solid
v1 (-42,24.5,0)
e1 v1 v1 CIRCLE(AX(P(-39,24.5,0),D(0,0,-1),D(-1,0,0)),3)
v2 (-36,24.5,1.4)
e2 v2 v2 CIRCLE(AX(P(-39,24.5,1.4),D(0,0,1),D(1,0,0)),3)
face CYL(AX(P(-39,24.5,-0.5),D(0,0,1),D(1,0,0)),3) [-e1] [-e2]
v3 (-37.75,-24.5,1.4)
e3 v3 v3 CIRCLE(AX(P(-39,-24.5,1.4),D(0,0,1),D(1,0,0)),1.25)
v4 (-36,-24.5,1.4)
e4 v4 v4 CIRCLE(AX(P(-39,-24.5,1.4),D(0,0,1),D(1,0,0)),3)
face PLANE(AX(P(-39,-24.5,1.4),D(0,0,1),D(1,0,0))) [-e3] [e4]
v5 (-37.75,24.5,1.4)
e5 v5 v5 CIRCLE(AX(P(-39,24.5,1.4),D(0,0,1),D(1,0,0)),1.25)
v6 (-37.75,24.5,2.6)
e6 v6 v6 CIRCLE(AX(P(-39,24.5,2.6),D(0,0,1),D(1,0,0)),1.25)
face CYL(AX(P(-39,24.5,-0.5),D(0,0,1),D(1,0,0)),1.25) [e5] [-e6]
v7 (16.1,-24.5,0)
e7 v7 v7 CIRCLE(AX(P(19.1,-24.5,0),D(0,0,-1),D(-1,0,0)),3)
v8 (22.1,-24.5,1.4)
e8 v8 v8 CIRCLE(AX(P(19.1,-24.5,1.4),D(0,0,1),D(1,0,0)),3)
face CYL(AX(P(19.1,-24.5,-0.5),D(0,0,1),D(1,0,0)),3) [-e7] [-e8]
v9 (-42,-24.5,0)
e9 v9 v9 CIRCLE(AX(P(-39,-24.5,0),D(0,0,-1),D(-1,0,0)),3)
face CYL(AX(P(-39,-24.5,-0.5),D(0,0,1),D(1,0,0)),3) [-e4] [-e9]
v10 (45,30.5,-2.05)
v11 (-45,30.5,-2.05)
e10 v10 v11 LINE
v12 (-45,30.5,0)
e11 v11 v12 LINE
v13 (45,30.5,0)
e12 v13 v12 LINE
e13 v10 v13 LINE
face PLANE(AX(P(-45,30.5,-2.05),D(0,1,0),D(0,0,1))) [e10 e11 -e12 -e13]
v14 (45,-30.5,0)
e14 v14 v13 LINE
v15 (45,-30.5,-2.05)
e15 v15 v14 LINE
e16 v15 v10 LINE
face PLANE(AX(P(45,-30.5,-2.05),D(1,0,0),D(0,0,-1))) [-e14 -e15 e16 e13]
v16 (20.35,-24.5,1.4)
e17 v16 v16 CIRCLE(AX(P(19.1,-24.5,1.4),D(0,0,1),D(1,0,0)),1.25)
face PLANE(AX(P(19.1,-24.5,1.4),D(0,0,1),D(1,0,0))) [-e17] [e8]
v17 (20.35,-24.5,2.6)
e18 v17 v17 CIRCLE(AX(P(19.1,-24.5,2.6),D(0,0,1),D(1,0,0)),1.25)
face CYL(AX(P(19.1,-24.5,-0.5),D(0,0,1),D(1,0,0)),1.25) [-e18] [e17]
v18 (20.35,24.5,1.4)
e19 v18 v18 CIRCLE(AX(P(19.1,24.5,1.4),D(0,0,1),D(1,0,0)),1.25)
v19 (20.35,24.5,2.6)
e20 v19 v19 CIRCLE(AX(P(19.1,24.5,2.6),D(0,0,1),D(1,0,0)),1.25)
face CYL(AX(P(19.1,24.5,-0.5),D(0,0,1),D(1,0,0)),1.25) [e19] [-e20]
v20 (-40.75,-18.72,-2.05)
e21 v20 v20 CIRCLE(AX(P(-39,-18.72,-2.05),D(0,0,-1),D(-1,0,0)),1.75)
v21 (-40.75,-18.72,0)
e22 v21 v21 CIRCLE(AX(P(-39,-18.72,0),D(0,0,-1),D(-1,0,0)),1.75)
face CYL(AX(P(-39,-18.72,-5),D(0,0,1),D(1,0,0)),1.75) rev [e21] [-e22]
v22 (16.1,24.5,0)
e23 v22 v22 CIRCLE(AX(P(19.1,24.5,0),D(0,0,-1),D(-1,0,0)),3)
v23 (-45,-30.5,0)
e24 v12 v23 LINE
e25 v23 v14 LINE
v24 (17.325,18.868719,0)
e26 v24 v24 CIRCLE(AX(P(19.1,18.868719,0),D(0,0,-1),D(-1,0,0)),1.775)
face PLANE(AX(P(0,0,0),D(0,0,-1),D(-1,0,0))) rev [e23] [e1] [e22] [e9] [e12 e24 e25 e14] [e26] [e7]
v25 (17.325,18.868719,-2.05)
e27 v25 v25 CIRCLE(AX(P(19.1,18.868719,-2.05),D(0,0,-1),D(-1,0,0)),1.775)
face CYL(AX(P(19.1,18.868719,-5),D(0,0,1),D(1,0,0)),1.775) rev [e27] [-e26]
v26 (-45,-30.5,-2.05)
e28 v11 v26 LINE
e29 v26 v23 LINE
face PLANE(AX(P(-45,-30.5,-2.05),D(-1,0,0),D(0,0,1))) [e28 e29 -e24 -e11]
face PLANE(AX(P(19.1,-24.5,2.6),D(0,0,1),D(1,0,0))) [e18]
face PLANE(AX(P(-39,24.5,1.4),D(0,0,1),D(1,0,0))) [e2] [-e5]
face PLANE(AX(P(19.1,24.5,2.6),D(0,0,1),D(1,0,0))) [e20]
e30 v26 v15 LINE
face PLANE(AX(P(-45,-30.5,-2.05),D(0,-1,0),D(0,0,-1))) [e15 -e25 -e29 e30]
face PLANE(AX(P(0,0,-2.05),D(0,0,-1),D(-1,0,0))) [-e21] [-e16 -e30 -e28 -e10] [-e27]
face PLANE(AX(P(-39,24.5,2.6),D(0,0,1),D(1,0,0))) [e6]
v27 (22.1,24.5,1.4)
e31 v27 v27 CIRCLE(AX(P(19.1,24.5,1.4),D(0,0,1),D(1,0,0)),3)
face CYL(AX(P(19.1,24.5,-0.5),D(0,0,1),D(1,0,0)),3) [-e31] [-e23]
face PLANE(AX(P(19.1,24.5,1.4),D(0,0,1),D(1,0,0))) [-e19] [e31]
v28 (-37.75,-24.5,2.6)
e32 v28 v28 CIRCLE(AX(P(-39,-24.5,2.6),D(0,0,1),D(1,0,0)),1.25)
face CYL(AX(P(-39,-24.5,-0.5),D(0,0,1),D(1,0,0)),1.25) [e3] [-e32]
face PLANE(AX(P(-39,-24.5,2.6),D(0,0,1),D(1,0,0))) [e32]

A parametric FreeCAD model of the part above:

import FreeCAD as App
import Part
import Sketcher
Q = App.Units.Quantity


def add_polygon(sketch, points):
    """Adds a closed chain of lines whose ends are joined by coincident constraints."""
    first, n = sketch.GeometryCount, len(points)
    for a, b in zip(points, points[1:] + points[:1]):
        sketch.addGeometry(Part.LineSegment(App.Vector(*a, 0), App.Vector(*b, 0)), False)
    for i in range(n):
        sketch.addConstraint(Sketcher.Constraint("Coincident", first + i, 2, first + (i + 1) % n, 1))

doc = App.newDocument("Part")
body = doc.addObject("PartDesign::Body", "Body")

sketch1 = doc.addObject("Sketcher::SketchObject", "Sketch")
body.addObject(sketch1)
sketch1.AttachmentSupport = (doc.XY_Plane, [""])
sketch1.MapMode = "FlatFace"
add_polygon(sketch1, [(-45, 30), (-45, -30), (45, -30), (45, 30)])
sketch1.addConstraint([
    Sketcher.Constraint("Vertical", 0),
    Sketcher.Constraint("Horizontal", 1),
    Sketcher.Constraint("Vertical", 2),
    Sketcher.Constraint("Horizontal", 3),
    Sketcher.Constraint("Symmetric", 0, 2, 2, 2, -1, 1),
    Sketcher.Constraint("DistanceX", 1, 1, 1, 2, Q("90 mm")),
    Sketcher.Constraint("DistanceY", 0, 2, 0, 1, Q("61 mm")),
])
pad1 = doc.addObject("PartDesign::Pad", "Pad")
body.addObject(pad1)
pad1.Profile = sketch1
pad1.Length = 2.05
pad1.Reversed = True
body2 = doc.addObject("PartDesign::Body", "Body001")

sketch2 = doc.addObject("Sketcher::SketchObject", "Sketch001")
body2.addObject(sketch2)
sketch2.AttachmentSupport = (doc.getObject("XY_Plane001"), [""])
sketch2.MapMode = "FlatFace"
sketch2.addGeometry(Part.Circle(App.Vector(-39, 24.5, 0), App.Vector(0, 0, 1), 3), False)
sketch2.addConstraint([
    Sketcher.Constraint("Diameter", 0, Q("6 mm")),
    Sketcher.Constraint("DistanceX", 0, 3, -1, 1, Q("39 mm")),
    Sketcher.Constraint("DistanceY", -1, 1, 0, 3, Q("24.5 mm")),
])
pad2 = doc.addObject("PartDesign::Pad", "Pad001")
body2.addObject(pad2)
pad2.Profile = sketch2
pad2.Type = "TwoLengths"
pad2.Length = 1.4
pad2.Length2 = 0.5
body3 = doc.addObject("PartDesign::Body", "Body002")

sketch3 = doc.addObject("Sketcher::SketchObject", "Sketch002")
body3.addObject(sketch3)
sketch3.AttachmentSupport = (doc.getObject("XY_Plane002"), [""])
sketch3.MapMode = "FlatFace"
sketch3.addGeometry(Part.Circle(App.Vector(-39, -24.5, 0), App.Vector(0, 0, 1), 3), False)
sketch3.addConstraint([
    Sketcher.Constraint("Diameter", 0, Q("6 mm")),
    Sketcher.Constraint("DistanceX", 0, 3, -1, 1, Q("39 mm")),
    Sketcher.Constraint("DistanceY", 0, 3, -1, 1, Q("24.5 mm")),
])
pad3 = doc.addObject("PartDesign::Pad", "Pad002")
body3.addObject(pad3)
pad3.Profile = sketch3
pad3.Type = "TwoLengths"
pad3.Length = 1.4
pad3.Length2 = 0.5
body4 = doc.addObject("PartDesign::Body", "Body003")

sketch4 = doc.addObject("Sketcher::SketchObject", "Sketch003")
body4.addObject(sketch4)
sketch4.AttachmentSupport = (doc.getObject("XY_Plane003"), [""])
sketch4.MapMode = "FlatFace"
sketch4.addGeometry(Part.Circle(App.Vector(19.1, -24.5, 0), App.Vector(0, 0, 1), 3), False)
sketch4.addConstraint([
    Sketcher.Constraint("Diameter", 0, Q("6 mm")),
    Sketcher.Constraint("DistanceX", -1, 1, 0, 3, Q("19.1 mm")),
    Sketcher.Constraint("DistanceY", 0, 3, -1, 1, Q("24.5 mm")),
])
pad4 = doc.addObject("PartDesign::Pad", "Pad003")
body4.addObject(pad4)
pad4.Profile = sketch4
pad4.Type = "TwoLengths"
pad4.Length = 1.4
pad4.Length2 = 0.5
body5 = doc.addObject("PartDesign::Body", "Body004")

sketch5 = doc.addObject("Sketcher::SketchObject", "Sketch004")
body5.addObject(sketch5)
sketch5.AttachmentSupport = (doc.getObject("XY_Plane004"), [""])
sketch5.MapMode = "FlatFace"
sketch5.addGeometry(Part.Circle(App.Vector(19.1, 24.5, 0), App.Vector(0, 0, 1), 3), False)
sketch5.addConstraint([
    Sketcher.Constraint("Diameter", 0, Q("6 mm")),
    Sketcher.Constraint("DistanceX", -1, 1, 0, 3, Q("19.1 mm")),
    Sketcher.Constraint("DistanceY", -1, 1, 0, 3, Q("24.5 mm")),
])
pad5 = doc.addObject("PartDesign::Pad", "Pad004")
body5.addObject(pad5)
pad5.Profile = sketch5
pad5.Type = "TwoLengths"
pad5.Length = 1.4
pad5.Length2 = 0.5
body6 = doc.addObject("PartDesign::Body", "Body005")

sketch6 = doc.addObject("Sketcher::SketchObject", "Sketch005")
body6.addObject(sketch6)
sketch6.AttachmentSupport = (doc.getObject("XY_Plane005"), [""])
sketch6.MapMode = "FlatFace"
sketch6.addGeometry(Part.Circle(App.Vector(-39, 24.5, 0), App.Vector(0, 0, 1), 1.2), False)
sketch6.addConstraint([
    Sketcher.Constraint("Diameter", 0, Q("2.5 mm")),
    Sketcher.Constraint("DistanceX", 0, 3, -1, 1, Q("39 mm")),
    Sketcher.Constraint("DistanceY", -1, 1, 0, 3, Q("24.5 mm")),
])
pad6 = doc.addObject("PartDesign::Pad", "Pad005")
body6.addObject(pad6)
pad6.Profile = sketch6
pad6.Type = "TwoLengths"
pad6.Length = 2.6
pad6.Length2 = 0.5
body7 = doc.addObject("PartDesign::Body", "Body006")

sketch7 = doc.addObject("Sketcher::SketchObject", "Sketch006")
body7.addObject(sketch7)
sketch7.AttachmentSupport = (doc.getObject("XY_Plane006"), [""])
sketch7.MapMode = "FlatFace"
sketch7.addGeometry(Part.Circle(App.Vector(19.1, 24.5, 0), App.Vector(0, 0, 1), 1.2), False)
sketch7.addConstraint([
    Sketcher.Constraint("Diameter", 0, Q("2.5 mm")),
    Sketcher.Constraint("DistanceX", -1, 1, 0, 3, Q("19.1 mm")),
    Sketcher.Constraint("DistanceY", -1, 1, 0, 3, Q("24.5 mm")),
])
pad7 = doc.addObject("PartDesign::Pad", "Pad006")
body7.addObject(pad7)
pad7.Profile = sketch7
pad7.Type = "TwoLengths"
pad7.Length = 2.6
pad7.Length2 = 0.5
body8 = doc.addObject("PartDesign::Body", "Body007")

sketch8 = doc.addObject("Sketcher::SketchObject", "Sketch007")
body8.addObject(sketch8)
sketch8.AttachmentSupport = (doc.getObject("XY_Plane007"), [""])
sketch8.MapMode = "FlatFace"
sketch8.addGeometry(Part.Circle(App.Vector(19.1, -24.5, 0), App.Vector(0, 0, 1), 1.2), False)
sketch8.addConstraint([
    Sketcher.Constraint("Diameter", 0, Q("2.5 mm")),
    Sketcher.Constraint("DistanceX", -1, 1, 0, 3, Q("19.1 mm")),
    Sketcher.Constraint("DistanceY", 0, 3, -1, 1, Q("24.5 mm")),
])
pad8 = doc.addObject("PartDesign::Pad", "Pad007")
body8.addObject(pad8)
pad8.Profile = sketch8
pad8.Type = "TwoLengths"
pad8.Length = 2.6
pad8.Length2 = 0.5
body9 = doc.addObject("PartDesign::Body", "Body008")

sketch9 = doc.addObject("Sketcher::SketchObject", "Sketch008")
body9.addObject(sketch9)
sketch9.AttachmentSupport = (doc.getObject("XY_Plane008"), [""])
sketch9.MapMode = "FlatFace"
sketch9.addGeometry(Part.Circle(App.Vector(-39, -24.5, 0), App.Vector(0, 0, 1), 1.2), False)
sketch9.addConstraint([
    Sketcher.Constraint("Diameter", 0, Q("2.5 mm")),
    Sketcher.Constraint("DistanceX", 0, 3, -1, 1, Q("39 mm")),
    Sketcher.Constraint("DistanceY", 0, 3, -1, 1, Q("24.5 mm")),
])
pad9 = doc.addObject("PartDesign::Pad", "Pad008")
body9.addObject(pad9)
pad9.Profile = sketch9
pad9.Type = "TwoLengths"
pad9.Length = 2.6
pad9.Length2 = 0.5
body10 = doc.addObject("PartDesign::Body", "Body009")

sketch10 = doc.addObject("Sketcher::SketchObject", "Sketch009")
body10.addObject(sketch10)
sketch10.AttachmentSupport = (doc.getObject("XY_Plane009"), [""])
sketch10.MapMode = "FlatFace"
sketch10.addGeometry(Part.Circle(App.Vector(-39, -18.7, 0), App.Vector(0, 0, 1), 1.8), False)
sketch10.addConstraint([
    Sketcher.Constraint("Diameter", 0, Q("3.5 mm")),
    Sketcher.Constraint("DistanceX", 0, 3, -1, 1, Q("39 mm")),
    Sketcher.Constraint("DistanceY", 0, 3, -1, 1, Q("18.72 mm")),
])
pad10 = doc.addObject("PartDesign::Pad", "Pad009")
body10.addObject(pad10)
pad10.Profile = sketch10
pad10.Type = "TwoLengths"
pad10.Length = 5
pad10.Length2 = 5
body11 = doc.addObject("PartDesign::Body", "Body010")

sketch11 = doc.addObject("Sketcher::SketchObject", "Sketch010")
body11.addObject(sketch11)
sketch11.AttachmentSupport = (doc.getObject("XY_Plane010"), [""])
sketch11.MapMode = "FlatFace"
sketch11.addGeometry(Part.Circle(App.Vector(19.1, 18.9, 0), App.Vector(0, 0, 1), 1.8), False)
sketch11.addConstraint([
    Sketcher.Constraint("Diameter", 0, Q("3.55 mm")),
    Sketcher.Constraint("DistanceX", -1, 1, 0, 3, Q("19.1 mm")),
    Sketcher.Constraint("DistanceY", -1, 1, 0, 3, Q("18.868719 mm")),
])
pad11 = doc.addObject("PartDesign::Pad", "Pad010")
body11.addObject(pad11)
pad11.Profile = sketch11
pad11.Type = "TwoLengths"
pad11.Length = 5
pad11.Length2 = 5
doc.recompute()

boolean = doc.addObject("PartDesign::Boolean", "Boolean")
body.addObject(boolean)
boolean.Type = "Fuse"
boolean.addObjects([body2])
doc.recompute()

boolean2 = doc.addObject("PartDesign::Boolean", "Boolean001")
body.addObject(boolean2)
boolean2.Type = "Fuse"
boolean2.addObjects([body6])
doc.recompute()

boolean3 = doc.addObject("PartDesign::Boolean", "Boolean002")
body.addObject(boolean3)
boolean3.Type = "Fuse"
boolean3.addObjects([body5])
doc.recompute()

boolean4 = doc.addObject("PartDesign::Boolean", "Boolean003")
body.addObject(boolean4)
boolean4.Type = "Fuse"
boolean4.addObjects([body7])
doc.recompute()

boolean5 = doc.addObject("PartDesign::Boolean", "Boolean004")
body.addObject(boolean5)
boolean5.Type = "Fuse"
boolean5.addObjects([body4])
doc.recompute()

boolean6 = doc.addObject("PartDesign::Boolean", "Boolean005")
body.addObject(boolean6)
boolean6.Type = "Fuse"
boolean6.addObjects([body8])
doc.recompute()

boolean7 = doc.addObject("PartDesign::Boolean", "Boolean006")
body.addObject(boolean7)
boolean7.Type = "Fuse"
boolean7.addObjects([body3])
doc.recompute()

boolean8 = doc.addObject("PartDesign::Boolean", "Boolean007")
body.addObject(boolean8)
boolean8.Type = "Fuse"
boolean8.addObjects([body9])
doc.recompute()

boolean9 = doc.addObject("PartDesign::Boolean", "Boolean008")
body.addObject(boolean9)
boolean9.Type = "Cut"
boolean9.addObjects([body11])
doc.recompute()

boolean10 = doc.addObject("PartDesign::Boolean", "Boolean009")
body.addObject(boolean10)
boolean10.Type = "Cut"
boolean10.addObjects([body10])

doc.recompute()
